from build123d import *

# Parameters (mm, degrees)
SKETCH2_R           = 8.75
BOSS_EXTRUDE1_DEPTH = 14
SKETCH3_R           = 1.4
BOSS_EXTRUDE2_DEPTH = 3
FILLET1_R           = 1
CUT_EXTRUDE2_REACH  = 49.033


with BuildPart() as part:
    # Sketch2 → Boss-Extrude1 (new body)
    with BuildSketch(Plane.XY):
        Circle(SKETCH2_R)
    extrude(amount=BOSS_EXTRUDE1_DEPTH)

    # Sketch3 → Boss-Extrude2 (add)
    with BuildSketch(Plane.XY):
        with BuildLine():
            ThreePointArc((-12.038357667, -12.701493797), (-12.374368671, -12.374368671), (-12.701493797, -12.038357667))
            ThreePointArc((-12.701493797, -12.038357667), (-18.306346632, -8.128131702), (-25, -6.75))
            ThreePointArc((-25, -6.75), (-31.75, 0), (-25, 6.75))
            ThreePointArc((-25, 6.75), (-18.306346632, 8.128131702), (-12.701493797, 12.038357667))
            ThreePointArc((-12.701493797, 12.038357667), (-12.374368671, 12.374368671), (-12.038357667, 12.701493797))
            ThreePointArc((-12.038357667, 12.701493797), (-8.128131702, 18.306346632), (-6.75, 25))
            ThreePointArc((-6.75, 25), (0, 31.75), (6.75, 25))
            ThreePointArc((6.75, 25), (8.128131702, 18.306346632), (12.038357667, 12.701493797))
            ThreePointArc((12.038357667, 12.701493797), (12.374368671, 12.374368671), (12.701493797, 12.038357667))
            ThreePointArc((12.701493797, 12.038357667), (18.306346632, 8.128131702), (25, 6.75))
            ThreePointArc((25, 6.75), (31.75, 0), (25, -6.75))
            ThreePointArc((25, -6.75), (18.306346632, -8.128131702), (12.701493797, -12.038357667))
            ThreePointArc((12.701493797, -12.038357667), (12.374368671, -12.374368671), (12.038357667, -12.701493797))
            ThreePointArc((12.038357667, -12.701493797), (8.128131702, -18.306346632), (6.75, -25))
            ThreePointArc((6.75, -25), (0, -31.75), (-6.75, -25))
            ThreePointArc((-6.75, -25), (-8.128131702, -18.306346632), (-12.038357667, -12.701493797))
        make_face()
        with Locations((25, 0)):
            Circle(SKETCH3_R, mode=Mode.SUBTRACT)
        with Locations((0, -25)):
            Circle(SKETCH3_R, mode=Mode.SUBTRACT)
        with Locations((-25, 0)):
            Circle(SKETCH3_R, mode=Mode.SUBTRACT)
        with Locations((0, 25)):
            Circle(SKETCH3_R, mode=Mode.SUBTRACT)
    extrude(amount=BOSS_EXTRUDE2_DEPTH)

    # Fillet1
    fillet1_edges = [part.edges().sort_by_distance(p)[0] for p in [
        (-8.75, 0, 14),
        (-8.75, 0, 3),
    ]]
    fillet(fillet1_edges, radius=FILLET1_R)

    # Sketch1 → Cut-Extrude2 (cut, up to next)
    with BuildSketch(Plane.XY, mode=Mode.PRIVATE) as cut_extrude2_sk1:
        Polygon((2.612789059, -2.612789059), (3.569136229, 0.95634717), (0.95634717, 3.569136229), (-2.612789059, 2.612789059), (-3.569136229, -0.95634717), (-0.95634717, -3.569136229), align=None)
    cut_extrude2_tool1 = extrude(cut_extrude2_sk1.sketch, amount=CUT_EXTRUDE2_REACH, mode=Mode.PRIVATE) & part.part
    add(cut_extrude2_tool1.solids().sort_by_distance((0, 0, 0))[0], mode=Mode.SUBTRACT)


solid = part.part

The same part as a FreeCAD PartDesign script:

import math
import FreeCAD as App
import Part
import Sketcher
Q = App.Units.Quantity


def edges_at(feature, points):
    """Names of the edges that pass closest to the given points."""
    edges = feature.Shape.Edges
    near = lambda p: min(range(len(edges)), key=lambda i: edges[i].distToShape(Part.Vertex(*p))[0])
    return sorted({f"Edge{near(p) + 1}" for p in points})

doc = App.newDocument("Part")
body = doc.addObject("PartDesign::Body", "Body")

# Sketch on XY plane
sketch1 = doc.addObject("Sketcher::SketchObject", "Sketch")
body.addObject(sketch1)
sketch1.AttachmentSupport = (doc.XY_Plane, [""])
sketch1.MapMode = "FlatFace"
sketch1.addGeometry(Part.Circle(App.Vector(0, 0, 0), App.Vector(0, 0, 1), 9), False)
sketch1.addConstraint([
    Sketcher.Constraint("Coincident", 0, 3, -1, 1),
    Sketcher.Constraint("Diameter", 0, 17.5),
])
pad1 = doc.addObject("PartDesign::Pad", "Pad")
body.addObject(pad1)
pad1.Profile = sketch1
pad1.Length = 14

# Sketch on XY plane
sketch2 = doc.addObject("Sketcher::SketchObject", "Sketch001")
body.addObject(sketch2)
sketch2.AttachmentSupport = (doc.XY_Plane, [""])
sketch2.MapMode = "FlatFace"
sketch2.addGeometry([
    Part.ArcOfCircle(Part.Circle(App.Vector(0, 0, 0), App.Vector(0, 0, 1), 17.5), math.radians(-136.54), math.radians(-133.46)),  # 0
    Part.ArcOfCircle(Part.Circle(App.Vector(-23.7, -25, 0), App.Vector(0, 0, 1), 16.9), math.radians(0), math.radians(47)),  # 1
    Part.ArcOfCircle(Part.Circle(App.Vector(0, -25, 0), App.Vector(0, 0, 1), 6.8), math.radians(180), math.radians(360)),  # 2
    Part.ArcOfCircle(Part.Circle(App.Vector(23.7, -25, 0), App.Vector(0, 0, 1), 16.9), math.radians(133), math.radians(180)),  # 3
    Part.ArcOfCircle(Part.Circle(App.Vector(0, 0, 0), App.Vector(0, 0, 1), 17.5), math.radians(-46.54), math.radians(-43.46)),  # 4
    Part.ArcOfCircle(Part.Circle(App.Vector(25, -23.7, 0), App.Vector(0, 0, 1), 16.9), math.radians(90), math.radians(137)),  # 5
    Part.ArcOfCircle(Part.Circle(App.Vector(25, 0, 0), App.Vector(0, 0, 1), 6.8), math.radians(-90), math.radians(90)),  # 6
    Part.ArcOfCircle(Part.Circle(App.Vector(25, 23.7, 0), App.Vector(0, 0, 1), 16.9), math.radians(-137), math.radians(-90)),  # 7
    Part.ArcOfCircle(Part.Circle(App.Vector(0, 0, 0), App.Vector(0, 0, 1), 17.5), math.radians(43.46), math.radians(46.54)),  # 8
    Part.ArcOfCircle(Part.Circle(App.Vector(23.7, 25, 0), App.Vector(0, 0, 1), 16.9), math.radians(180), math.radians(227)),  # 9
    Part.ArcOfCircle(Part.Circle(App.Vector(0, 25, 0), App.Vector(0, 0, 1), 6.8), math.radians(0), math.radians(180)),  # 10
    Part.ArcOfCircle(Part.Circle(App.Vector(-23.7, 25, 0), App.Vector(0, 0, 1), 16.9), math.radians(-47), math.radians(0)),  # 11
    Part.ArcOfCircle(Part.Circle(App.Vector(0, 0, 0), App.Vector(0, 0, 1), 17.5), math.radians(133.46), math.radians(136.54)),  # 12
    Part.ArcOfCircle(Part.Circle(App.Vector(-25, 23.7, 0), App.Vector(0, 0, 1), 16.9), math.radians(-90), math.radians(-43)),  # 13
    Part.ArcOfCircle(Part.Circle(App.Vector(-25, 0, 0), App.Vector(0, 0, 1), 6.8), math.radians(90), math.radians(270)),  # 14
    Part.ArcOfCircle(Part.Circle(App.Vector(-25, -23.7, 0), App.Vector(0, 0, 1), 16.9), math.radians(43), math.radians(90)),  # 15
    Part.Circle(App.Vector(0, -25, 0), App.Vector(0, 0, 1), 1.4),  # 16
    Part.Circle(App.Vector(25, 0, 0), App.Vector(0, 0, 1), 1.4),  # 17
    Part.Circle(App.Vector(-25, 0, 0), App.Vector(0, 0, 1), 1.4),  # 18
    Part.Circle(App.Vector(0, 25, 0), App.Vector(0, 0, 1), 1.4),  # 19
], False)
sketch2.addConstraint([
    Sketcher.Constraint("Tangent", 0, 2, 1, 2),
    Sketcher.Constraint("Tangent", 1, 1, 2, 1),
    Sketcher.Constraint("Tangent", 2, 2, 3, 2),
    Sketcher.Constraint("Tangent", 3, 1, 4, 1),
    Sketcher.Constraint("Tangent", 4, 2, 5, 2),
    Sketcher.Constraint("Tangent", 5, 1, 6, 1),
    Sketcher.Constraint("Tangent", 6, 2, 7, 2),
    Sketcher.Constraint("Tangent", 7, 1, 8, 1),
    Sketcher.Constraint("Tangent", 8, 2, 9, 2),
    Sketcher.Constraint("Tangent", 9, 1, 10, 1),
    Sketcher.Constraint("Tangent", 10, 2, 11, 2),
    Sketcher.Constraint("Tangent", 11, 1, 12, 1),
    Sketcher.Constraint("Tangent", 12, 2, 13, 2),
    Sketcher.Constraint("Tangent", 13, 1, 14, 1),
    Sketcher.Constraint("Tangent", 14, 2, 15, 2),
    Sketcher.Constraint("Tangent", 15, 1, 0, 1),
    Sketcher.Constraint("Coincident", 0, 3, -1, 1),
    Sketcher.Constraint("Coincident", 4, 3, -1, 1),
    Sketcher.Constraint("Coincident", 8, 3, -1, 1),
    Sketcher.Constraint("Coincident", 12, 3, -1, 1),
    Sketcher.Constraint("Coincident", 16, 3, 2, 3),
    Sketcher.Constraint("Coincident", 17, 3, 6, 3),
    Sketcher.Constraint("Coincident", 18, 3, 14, 3),
    Sketcher.Constraint("Coincident", 19, 3, 10, 3),
    Sketcher.Constraint("Equal", 1, 3),
    Sketcher.Constraint("Equal", 0, 4),
    Sketcher.Constraint("Equal", 3, 5),
    Sketcher.Constraint("Equal", 2, 6),
    Sketcher.Constraint("Equal", 5, 7),
    Sketcher.Constraint("Equal", 4, 8),
    Sketcher.Constraint("Equal", 7, 9),
    Sketcher.Constraint("Equal", 6, 10),
    Sketcher.Constraint("Equal", 9, 11),
    Sketcher.Constraint("Equal", 8, 12),
    Sketcher.Constraint("Equal", 11, 13),
    Sketcher.Constraint("Equal", 10, 14),
    Sketcher.Constraint("Equal", 13, 15),
    Sketcher.Constraint("Equal", 16, 17),
    Sketcher.Constraint("Equal", 17, 18),
    Sketcher.Constraint("Equal", 18, 19),
    Sketcher.Constraint("Symmetric", 2, 3, 10, 3, -1, 1),
    Sketcher.Constraint("Symmetric", 6, 3, 14, 3, -1, 1),
    Sketcher.Constraint("PointOnObject", 2, 3, -2),
    Sketcher.Constraint("PointOnObject", 6, 3, -1),
    Sketcher.Constraint("Horizontal", 1, 3, 2, 3),
    Sketcher.Constraint("Vertical", 5, 3, 6, 3),
    Sketcher.Constraint("Diameter", 16, 2.8),
    Sketcher.Constraint("Radius", 0, 17.499999),
    Sketcher.Constraint("Radius", 2, 6.75),
    Sketcher.Constraint("DistanceY", 1, 3, -1, 1, 25.0),
])
pad2 = doc.addObject("PartDesign::Pad", "Pad001")
body.addObject(pad2)
pad2.Profile = sketch2
pad2.Length = 3
doc.recompute()

fillet = doc.addObject("PartDesign::Fillet", "Fillet")
body.addObject(fillet)
fillet.Base = (pad2, edges_at(pad2, [(-8.75, 0, 14), (-8.75, 0, 3)]))
fillet.Radius = 1

# Sketch on XY plane
sketch3 = doc.addObject("Sketcher::SketchObject", "Sketch002")
body.addObject(sketch3)
sketch3.AttachmentSupport = (doc.XY_Plane, [""])
sketch3.MapMode = "FlatFace"
sketch3.addGeometry([
    Part.LineSegment(App.Vector(2.6, -2.6, 0), App.Vector(3.6, 1, 0)),  # 0
    Part.LineSegment(App.Vector(3.6, 1, 0), App.Vector(1, 3.6, 0)),  # 1
    Part.LineSegment(App.Vector(1, 3.6, 0), App.Vector(-2.6, 2.6, 0)),  # 2
    Part.LineSegment(App.Vector(-2.6, 2.6, 0), App.Vector(-3.6, -1, 0)),  # 3
    Part.LineSegment(App.Vector(-3.6, -1, 0), App.Vector(-1, -3.6, 0)),  # 4
    Part.LineSegment(App.Vector(-1, -3.6, 0), App.Vector(2.6, -2.6, 0)),  # 5
], False)
sketch3.addConstraint([
    Sketcher.Constraint("Coincident", 0, 2, 1, 1),
    Sketcher.Constraint("Coincident", 1, 2, 2, 1),
    Sketcher.Constraint("Coincident", 2, 2, 3, 1),
    Sketcher.Constraint("Coincident", 3, 2, 4, 1),
    Sketcher.Constraint("Coincident", 4, 2, 5, 1),
    Sketcher.Constraint("Coincident", 5, 2, 0, 1),
    Sketcher.Constraint("Symmetric", 0, 2, 3, 2, -1, 1),
    Sketcher.Constraint("Symmetric", 1, 2, 4, 2, -1, 1),
    Sketcher.Constraint("Symmetric", 2, 2, 5, 2, -1, 1),
    Sketcher.Constraint("Equal", 0, 1),
    Sketcher.Constraint("Equal", 1, 2),
    Sketcher.Constraint("Angle", 0, Q("75 deg")),
    Sketcher.Constraint("Angle", 1, Q("135 deg")),
    Sketcher.Constraint("Angle", 2, Q("-165 deg")),
    Sketcher.Constraint("Distance", 0, 3.695042),
])
pocket1 = doc.addObject("PartDesign::Pocket", "Pocket")
body.addObject(pocket1)
pocket1.Profile = sketch3
pocket1.Type = "UpToFirst"
pocket1.Reversed = True

doc.recompute()
